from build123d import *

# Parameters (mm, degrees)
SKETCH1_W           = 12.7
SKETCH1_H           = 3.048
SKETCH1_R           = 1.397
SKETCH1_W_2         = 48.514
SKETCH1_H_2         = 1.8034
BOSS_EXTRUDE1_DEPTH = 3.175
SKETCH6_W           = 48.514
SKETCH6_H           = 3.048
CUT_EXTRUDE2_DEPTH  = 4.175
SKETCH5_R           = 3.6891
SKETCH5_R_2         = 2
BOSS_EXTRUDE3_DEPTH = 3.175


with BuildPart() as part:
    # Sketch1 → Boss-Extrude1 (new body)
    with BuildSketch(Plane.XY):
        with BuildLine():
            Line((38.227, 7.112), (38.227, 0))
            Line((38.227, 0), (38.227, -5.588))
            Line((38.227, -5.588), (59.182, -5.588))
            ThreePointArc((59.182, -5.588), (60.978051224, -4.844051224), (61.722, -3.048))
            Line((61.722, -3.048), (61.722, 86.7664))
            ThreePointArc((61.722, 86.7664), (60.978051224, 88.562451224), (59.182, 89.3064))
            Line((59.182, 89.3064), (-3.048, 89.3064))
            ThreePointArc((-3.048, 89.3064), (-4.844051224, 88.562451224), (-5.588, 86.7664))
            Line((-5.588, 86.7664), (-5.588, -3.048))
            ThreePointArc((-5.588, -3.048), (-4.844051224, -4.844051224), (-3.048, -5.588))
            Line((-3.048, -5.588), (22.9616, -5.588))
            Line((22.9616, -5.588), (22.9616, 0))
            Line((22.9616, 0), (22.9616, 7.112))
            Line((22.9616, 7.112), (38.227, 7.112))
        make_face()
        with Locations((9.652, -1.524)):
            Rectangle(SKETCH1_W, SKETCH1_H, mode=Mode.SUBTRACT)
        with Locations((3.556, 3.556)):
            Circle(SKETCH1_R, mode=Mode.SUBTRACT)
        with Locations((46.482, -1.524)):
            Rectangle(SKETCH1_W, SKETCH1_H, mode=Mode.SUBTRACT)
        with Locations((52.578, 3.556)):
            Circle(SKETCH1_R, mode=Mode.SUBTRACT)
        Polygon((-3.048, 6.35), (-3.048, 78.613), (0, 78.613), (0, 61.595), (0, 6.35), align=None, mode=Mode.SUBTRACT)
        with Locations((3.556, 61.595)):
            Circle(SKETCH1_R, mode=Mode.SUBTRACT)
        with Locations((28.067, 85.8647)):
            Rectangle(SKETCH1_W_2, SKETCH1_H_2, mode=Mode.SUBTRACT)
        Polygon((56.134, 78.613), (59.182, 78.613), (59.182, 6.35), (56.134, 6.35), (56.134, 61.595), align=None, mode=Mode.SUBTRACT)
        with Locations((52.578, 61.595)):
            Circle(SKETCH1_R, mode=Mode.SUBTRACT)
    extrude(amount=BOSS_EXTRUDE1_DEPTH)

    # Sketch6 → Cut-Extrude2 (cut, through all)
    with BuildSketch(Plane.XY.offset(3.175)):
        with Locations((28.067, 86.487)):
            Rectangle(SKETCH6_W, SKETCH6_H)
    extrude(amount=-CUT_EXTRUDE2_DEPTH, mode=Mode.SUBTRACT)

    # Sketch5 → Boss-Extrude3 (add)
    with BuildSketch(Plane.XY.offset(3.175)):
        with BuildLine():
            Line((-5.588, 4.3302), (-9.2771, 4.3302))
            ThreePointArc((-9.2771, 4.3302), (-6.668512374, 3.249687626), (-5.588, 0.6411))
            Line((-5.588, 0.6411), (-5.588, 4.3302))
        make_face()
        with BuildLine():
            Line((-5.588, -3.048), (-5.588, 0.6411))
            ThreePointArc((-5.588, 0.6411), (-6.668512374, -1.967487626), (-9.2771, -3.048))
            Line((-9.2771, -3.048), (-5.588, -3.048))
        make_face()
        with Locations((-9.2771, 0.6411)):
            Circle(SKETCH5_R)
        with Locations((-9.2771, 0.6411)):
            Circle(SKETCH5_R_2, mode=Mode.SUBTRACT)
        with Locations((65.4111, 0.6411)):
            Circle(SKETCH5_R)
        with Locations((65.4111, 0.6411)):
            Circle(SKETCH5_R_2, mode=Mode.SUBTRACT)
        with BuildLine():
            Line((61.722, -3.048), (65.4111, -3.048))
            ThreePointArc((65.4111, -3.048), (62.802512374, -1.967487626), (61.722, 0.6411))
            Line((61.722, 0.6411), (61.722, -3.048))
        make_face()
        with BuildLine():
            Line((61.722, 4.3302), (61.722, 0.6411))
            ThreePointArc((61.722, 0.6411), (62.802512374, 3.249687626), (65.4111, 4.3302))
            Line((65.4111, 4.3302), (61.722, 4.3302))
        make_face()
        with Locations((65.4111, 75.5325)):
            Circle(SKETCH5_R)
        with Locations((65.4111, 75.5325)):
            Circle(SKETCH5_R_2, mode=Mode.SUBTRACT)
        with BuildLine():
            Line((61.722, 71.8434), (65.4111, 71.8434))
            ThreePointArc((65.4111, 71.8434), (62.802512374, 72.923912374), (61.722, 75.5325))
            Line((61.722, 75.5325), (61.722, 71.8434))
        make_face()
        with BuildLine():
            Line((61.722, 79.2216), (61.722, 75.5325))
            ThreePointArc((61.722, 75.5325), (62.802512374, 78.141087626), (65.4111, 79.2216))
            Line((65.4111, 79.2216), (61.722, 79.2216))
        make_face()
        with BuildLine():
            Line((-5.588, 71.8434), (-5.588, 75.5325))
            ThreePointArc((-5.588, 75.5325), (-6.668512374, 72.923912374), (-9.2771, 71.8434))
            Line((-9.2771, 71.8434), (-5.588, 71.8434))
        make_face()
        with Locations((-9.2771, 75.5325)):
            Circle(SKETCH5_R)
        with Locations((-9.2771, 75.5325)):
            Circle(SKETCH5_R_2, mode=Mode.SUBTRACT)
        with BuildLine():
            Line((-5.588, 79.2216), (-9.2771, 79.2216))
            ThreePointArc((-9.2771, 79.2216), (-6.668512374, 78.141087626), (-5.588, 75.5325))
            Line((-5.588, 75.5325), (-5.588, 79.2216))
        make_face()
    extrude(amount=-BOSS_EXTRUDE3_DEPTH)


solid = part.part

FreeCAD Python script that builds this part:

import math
import FreeCAD as App
import Part
import Sketcher
from FreeCAD import Vector
Q = App.Units.Quantity


def add_polygon(sketch, points):
    """Adds a closed chain of lines whose ends are joined by coincident constraints."""
    first, n = sketch.GeometryCount, len(points)
    for a, b in zip(points, points[1:] + points[:1]):
        sketch.addGeometry(Part.LineSegment(App.Vector(*a, 0), App.Vector(*b, 0)), False)
    for i in range(n):
        sketch.addConstraint(Sketcher.Constraint("Coincident", first + i, 2, first + (i + 1) % n, 1))

doc = App.newDocument("Part")
body = doc.addObject("PartDesign::Body", "Body")

# Sketch on XY plane
sketch1 = body.newObject("Sketcher::SketchObject", "Sketch")
sketch1.AttachmentSupport = (doc.getObject("XY_Plane"), [""])
sketch1.MapMode = "FlatFace"
sketch1.addGeometry(Part.LineSegment(Vector(38.227, 7.112, 0), Vector(38.227, -5.588, 0)), False)  # 0
sketch1.addGeometry(Part.LineSegment(Vector(38.227, -5.588, 0), Vector(59.182, -5.588, 0)), False)  # 1
sketch1.addGeometry(Part.ArcOfCircle(Part.Circle(Vector(59.182, -3.048, 0), Vector(0, 0, 1), 2.54), math.radians(-90), math.radians(0)), False)  # 2
sketch1.addGeometry(Part.LineSegment(Vector(61.722, -3.048, 0), Vector(61.722, 86.7664, 0)), False)  # 3
sketch1.addGeometry(Part.ArcOfCircle(Part.Circle(Vector(59.182, 86.7664, 0), Vector(0, 0, 1), 2.54), math.radians(0), math.radians(90)), False)  # 4
sketch1.addGeometry(Part.LineSegment(Vector(59.182, 89.3064, 0), Vector(-3.048, 89.3064, 0)), False)  # 5
sketch1.addGeometry(Part.ArcOfCircle(Part.Circle(Vector(-3.048, 86.7664, 0), Vector(0, 0, 1), 2.54), math.radians(90), math.radians(180)), False)  # 6
sketch1.addGeometry(Part.LineSegment(Vector(-5.588, 86.7664, 0), Vector(-5.588, -3.048, 0)), False)  # 7
sketch1.addGeometry(Part.ArcOfCircle(Part.Circle(Vector(-3.048, -3.048, 0), Vector(0, 0, 1), 2.54), math.radians(-180), math.radians(-90)), False)  # 8
sketch1.addGeometry(Part.LineSegment(Vector(-3.048, -5.588, 0), Vector(22.9616, -5.588, 0)), False)  # 9
sketch1.addGeometry(Part.LineSegment(Vector(22.9616, -5.588, 0), Vector(22.9616, 7.112, 0)), False)  # 10
sketch1.addGeometry(Part.LineSegment(Vector(22.9616, 7.112, 0), Vector(38.227, 7.112, 0)), False)  # 11
sketch1.addGeometry(Part.Circle(Vector(3.556, 3.556, 0), Vector(0, 0, 1), 1.397), False)  # 12
add_polygon(sketch1, [(16.002, -3.048), (3.302, -3.048), (3.302, 0), (16.002, 0)])  # lines 13-16
add_polygon(sketch1, [(52.832, -3.048), (40.132, -3.048), (40.132, 0), (52.832, 0)])  # lines 17-20
sketch1.addGeometry(Part.Circle(Vector(52.578, 3.556, 0), Vector(0, 0, 1), 1.397), False)  # 21
add_polygon(sketch1, [(0, 6.35), (-3.048, 6.35), (-3.048, 78.613), (0, 78.613)])  # lines 22-25
sketch1.addGeometry(Part.Circle(Vector(3.556, 61.595, 0), Vector(0, 0, 1), 1.397), False)  # 26
add_polygon(sketch1, [(56.134, 6.35), (56.134, 78.613), (59.182, 78.613), (59.182, 6.35)])  # lines 27-30
sketch1.addGeometry(Part.Circle(Vector(52.578, 61.595, 0), Vector(0, 0, 1), 1.397), False)  # 31
add_polygon(sketch1, [(52.324, 84.963), (3.81, 84.963), (3.81, 86.7664), (52.324, 86.7664)])  # lines 32-35
sketch1.addConstraint([
    Sketcher.Constraint("Coincident", 0, 2, 1, 1),
    Sketcher.Constraint("Tangent", 1, 2, 2, 1),
    Sketcher.Constraint("Tangent", 2, 2, 3, 1),
    Sketcher.Constraint("Tangent", 3, 2, 4, 1),
    Sketcher.Constraint("Tangent", 4, 2, 5, 1),
    Sketcher.Constraint("Tangent", 5, 2, 6, 1),
    Sketcher.Constraint("Tangent", 6, 2, 7, 1),
    Sketcher.Constraint("Tangent", 7, 2, 8, 1),
    Sketcher.Constraint("Tangent", 8, 2, 9, 1),
    Sketcher.Constraint("Coincident", 9, 2, 10, 1),
    Sketcher.Constraint("Coincident", 10, 2, 11, 1),
    Sketcher.Constraint("Coincident", 11, 2, 0, 1),
    Sketcher.Constraint("Vertical", 0),
    Sketcher.Constraint("Horizontal", 1),
    Sketcher.Constraint("Vertical", 3),
    Sketcher.Constraint("Horizontal", 5),
    Sketcher.Constraint("Vertical", 7),
    Sketcher.Constraint("Horizontal", 9),
    Sketcher.Constraint("Vertical", 10),
    Sketcher.Constraint("Horizontal", 11),
    Sketcher.Constraint("Horizontal", 13),
    Sketcher.Constraint("Vertical", 14),
    Sketcher.Constraint("Horizontal", 15),
    Sketcher.Constraint("Vertical", 16),
    Sketcher.Constraint("Horizontal", 17),
    Sketcher.Constraint("Vertical", 18),
    Sketcher.Constraint("Horizontal", 19),
    Sketcher.Constraint("Vertical", 20),
    Sketcher.Constraint("Horizontal", 22),
    Sketcher.Constraint("Vertical", 23),
    Sketcher.Constraint("Horizontal", 24),
    Sketcher.Constraint("Vertical", 25),
    Sketcher.Constraint("Vertical", 27),
    Sketcher.Constraint("Horizontal", 28),
    Sketcher.Constraint("Vertical", 29),
    Sketcher.Constraint("Horizontal", 30),
    Sketcher.Constraint("Horizontal", 32),
    Sketcher.Constraint("Vertical", 33),
    Sketcher.Constraint("Horizontal", 34),
    Sketcher.Constraint("Vertical", 35),
    Sketcher.Constraint("Equal", 2, 4),
    Sketcher.Constraint("Equal", 4, 6),
    Sketcher.Constraint("Equal", 6, 8),
    Sketcher.Constraint("Equal", 12, 21),
    Sketcher.Constraint("Equal", 21, 26),
    Sketcher.Constraint("Equal", 26, 31),
    Sketcher.Constraint("PointOnObject", 14, 2, -1),
    Sketcher.Constraint("PointOnObject", 18, 2, -1),
    Sketcher.Constraint("PointOnObject", 24, 2, -2),
    Sketcher.Constraint("Horizontal", 2, 3, 8, 3),
    Sketcher.Constraint("Horizontal", 12, 3, 21, 3),
    Sketcher.Constraint("Horizontal", 26, 3, 31, 3),
    Sketcher.Constraint("Horizontal", 7, 2, 13, 2),
    Sketcher.Constraint("Horizontal", 16, 2, 17, 2),
    Sketcher.Constraint("Horizontal", 24, 2, 27, 2),
    Sketcher.Constraint("Horizontal", 25, 2, 29, 2),
    Sketcher.Constraint("Horizontal", 6, 2, 33, 2),
    Sketcher.Constraint("Vertical", 12, 3, 26, 3),
    Sketcher.Constraint("Vertical", 21, 3, 31, 3),
    Sketcher.Constraint("Vertical", 8, 2, 22, 2),
    Sketcher.Constraint("Vertical", 4, 2, 28, 2),
    Sketcher.Constraint("Equal", 15, 17),
    Sketcher.Constraint("Equal", 24, 28),
    Sketcher.Constraint("Equal", 19, 0),
    Sketcher.Constraint("Equal", 30, 14),
    Sketcher.Constraint("Radius", 2, Q("0.1 in")),
    Sketcher.Constraint("Diameter", 12, Q("0.11 in")),
    Sketcher.Constraint("DistanceX", 13, 2, 13, 1, Q("0.5 in")),
    Sketcher.Constraint("DistanceX", 5, 2, 5, 1, Q("2.45 in")),
    Sketcher.Constraint("DistanceX", 22, 2, 22, 1, Q("0.12 in")),
    Sketcher.Constraint("DistanceX", 32, 2, 32, 1, Q("1.91 in")),
    Sketcher.Constraint("DistanceX", 1, 1, 1, 2, Q("0.825 in")),
    Sketcher.Constraint("DistanceX", 9, 1, 9, 2, Q("1.024 in")),
    Sketcher.Constraint("DistanceY", 3, 1, 3, 2, Q("3.536 in")),
    Sketcher.Constraint("DistanceY", 23, 1, 23, 2, Q("2.845 in")),
    Sketcher.Constraint("DistanceY", 33, 1, 33, 2, Q("0.071 in")),
    Sketcher.Constraint("DistanceX", -1, 1, 12, 3, Q("0.14 in")),
    Sketcher.Constraint("DistanceY", -1, 1, 12, 3, Q("0.14 in")),
    Sketcher.Constraint("DistanceX", -1, 1, 21, 3, Q("2.07 in")),
    Sketcher.Constraint("DistanceX", -1, 1, 13, 2, Q("0.13 in")),
    Sketcher.Constraint("DistanceX", -1, 1, 17, 2, Q("1.58 in")),
    Sketcher.Constraint("DistanceY", -1, 1, 22, 2, Q("0.25 in")),
    Sketcher.Constraint("DistanceX", -1, 1, 32, 2, Q("0.15 in")),
    Sketcher.Constraint("DistanceY", 26, 3, 23, 2, Q("0.67 in")),
])
pad1 = body.newObject("PartDesign::Pad", "Pad")
pad1.Profile = sketch1
pad1.Length = Q("0.125 in")

# Sketch on XY plane
sketch2 = body.newObject("Sketcher::SketchObject", "Sketch001")
sketch2.AttachmentSupport = (doc.getObject("XY_Plane"), [""])
sketch2.MapMode = "FlatFace"
sketch2.AttachmentOffset = App.Placement(Vector(0, 0, 0.125 * 25.4), App.Rotation())
add_polygon(sketch2, [(3.81, 88.011), (3.81, 84.963), (52.324, 84.963), (52.324, 88.011)])  # lines 0-3
sketch2.addConstraint([
    Sketcher.Constraint("Vertical", 0),
    Sketcher.Constraint("Horizontal", 1),
    Sketcher.Constraint("Vertical", 2),
    Sketcher.Constraint("Horizontal", 3),
    Sketcher.Constraint("DistanceX", 1, 1, 1, 2, Q("1.91 in")),
    Sketcher.Constraint("DistanceY", 0, 2, 0, 1, Q("0.12 in")),
    Sketcher.Constraint("DistanceX", -1, 1, 0, 2, Q("0.15 in")),
    Sketcher.Constraint("DistanceY", -1, 1, 0, 2, Q("3.345 in")),
])
pocket1 = body.newObject("PartDesign::Pocket", "Pocket")
pocket1.Profile = sketch2
pocket1.Type = "ThroughAll"

# Sketch on XY plane
sketch3 = body.newObject("Sketcher::SketchObject", "Sketch002")
sketch3.AttachmentSupport = (doc.getObject("XY_Plane"), [""])
sketch3.MapMode = "FlatFace"
sketch3.AttachmentOffset = App.Placement(Vector(0, 0, 0.125 * 25.4), App.Rotation())
sketch3.addGeometry([
    Part.LineSegment(Vector(-5.588, 4.3302, 0), Vector(-9.2771, 4.3302, 0)),  # 0
    Part.ArcOfCircle(Part.Circle(Vector(-9.2771, 0.6411, 0), Vector(0, 0, 1), 3.6891), math.radians(90), math.radians(270)),  # 1
    Part.LineSegment(Vector(-9.2771, -3.048, 0), Vector(-5.588, -3.048, 0)),  # 2
    Part.LineSegment(Vector(-5.588, -3.048, 0), Vector(-5.588, 4.3302, 0)),  # 3
    Part.Circle(Vector(-9.2771, 0.6411, 0), Vector(0, 0, 1), 2),  # 4
    Part.LineSegment(Vector(61.722, -3.048, 0), Vector(65.4111, -3.048, 0)),  # 5
    Part.ArcOfCircle(Part.Circle(Vector(65.4111, 0.6411, 0), Vector(0, 0, 1), 3.6891), math.radians(-90), math.radians(90)),  # 6
    Part.LineSegment(Vector(65.4111, 4.3302, 0), Vector(61.722, 4.3302, 0)),  # 7
    Part.LineSegment(Vector(61.722, 4.3302, 0), Vector(61.722, -3.048, 0)),  # 8
    Part.Circle(Vector(65.4111, 0.6411, 0), Vector(0, 0, 1), 2),  # 9
    Part.LineSegment(Vector(61.722, 71.8434, 0), Vector(65.4111, 71.8434, 0)),  # 10
    Part.ArcOfCircle(Part.Circle(Vector(65.4111, 75.5325, 0), Vector(0, 0, 1), 3.6891), math.radians(-90), math.radians(90)),  # 11
    Part.LineSegment(Vector(65.4111, 79.2216, 0), Vector(61.722, 79.2216, 0)),  # 12
    Part.LineSegment(Vector(61.722, 79.2216, 0), Vector(61.722, 71.8434, 0)),  # 13
    Part.Circle(Vector(65.4111, 75.5325, 0), Vector(0, 0, 1), 2),  # 14
    Part.LineSegment(Vector(-5.588, 71.8434, 0), Vector(-5.588, 79.2216, 0)),  # 15
    Part.LineSegment(Vector(-5.588, 79.2216, 0), Vector(-9.2771, 79.2216, 0)),  # 16
    Part.ArcOfCircle(Part.Circle(Vector(-9.2771, 75.5325, 0), Vector(0, 0, 1), 3.6891), math.radians(90), math.radians(270)),  # 17
    Part.LineSegment(Vector(-9.2771, 71.8434, 0), Vector(-5.588, 71.8434, 0)),  # 18
    Part.Circle(Vector(-9.2771, 75.5325, 0), Vector(0, 0, 1), 2),  # 19
], False)
sketch3.addConstraint([
    Sketcher.Constraint("Tangent", 0, 2, 1, 1),
    Sketcher.Constraint("Tangent", 1, 2, 2, 1),
    Sketcher.Constraint("Coincident", 2, 2, 3, 1),
    Sketcher.Constraint("Coincident", 3, 2, 0, 1),
    Sketcher.Constraint("Tangent", 5, 2, 6, 1),
    Sketcher.Constraint("Tangent", 6, 2, 7, 1),
    Sketcher.Constraint("Coincident", 7, 2, 8, 1),
    Sketcher.Constraint("Coincident", 8, 2, 5, 1),
    Sketcher.Constraint("Tangent", 10, 2, 11, 1),
    Sketcher.Constraint("Tangent", 11, 2, 12, 1),
    Sketcher.Constraint("Coincident", 12, 2, 13, 1),
    Sketcher.Constraint("Coincident", 13, 2, 10, 1),
    Sketcher.Constraint("Coincident", 15, 2, 16, 1),
    Sketcher.Constraint("Tangent", 16, 2, 17, 1),
    Sketcher.Constraint("Tangent", 17, 2, 18, 1),
    Sketcher.Constraint("Coincident", 18, 2, 15, 1),
    Sketcher.Constraint("Horizontal", 0),
    Sketcher.Constraint("Horizontal", 2),
    Sketcher.Constraint("Vertical", 3),
    Sketcher.Constraint("Horizontal", 5),
    Sketcher.Constraint("Horizontal", 7),
    Sketcher.Constraint("Vertical", 8),
    Sketcher.Constraint("Horizontal", 10),
    Sketcher.Constraint("Horizontal", 12),
    Sketcher.Constraint("Vertical", 13),
    Sketcher.Constraint("Vertical", 15),
    Sketcher.Constraint("Horizontal", 16),
    Sketcher.Constraint("Horizontal", 18),
    Sketcher.Constraint("Coincident", 4, 3, 1, 3),
    Sketcher.Constraint("Coincident", 9, 3, 6, 3),
    Sketcher.Constraint("Coincident", 14, 3, 11, 3),
    Sketcher.Constraint("Coincident", 19, 3, 17, 3),
    Sketcher.Constraint("Equal", 1, 6),
    Sketcher.Constraint("Equal", 4, 9),
    Sketcher.Constraint("Equal", 6, 11),
    Sketcher.Constraint("Equal", 9, 14),
    Sketcher.Constraint("Equal", 11, 17),
    Sketcher.Constraint("Equal", 14, 19),
    Sketcher.Constraint("Horizontal", 4, 3, 6, 3),
    Sketcher.Constraint("Horizontal", 14, 3, 17, 3),
    Sketcher.Constraint("Vertical", 9, 3, 11, 3),
    Sketcher.Constraint("Vertical", 4, 3, 17, 3),
    Sketcher.Constraint("Vertical", 8, 2, 12, 2),
    Sketcher.Constraint("Vertical", 3, 2, 15, 2),
    Sketcher.Constraint("Equal", 2, 5),
    Sketcher.Constraint("Diameter", 4, 4.0),
    Sketcher.Constraint("DistanceY", 1, 2, -1, 1, Q("0.12 in")),
    Sketcher.Constraint("DistanceX", 2, 2, -1, 1, Q("0.22 in")),
    Sketcher.Constraint("DistanceX", -1, 1, 7, 2, Q("2.43 in")),
    Sketcher.Constraint("Radius", 1, 3.6891),
    Sketcher.Constraint("DistanceY", 6, 2, 10, 2, Q("2.658 in")),
    Sketcher.Constraint("DistanceX", 0, 2, 0, 1, 3.6891),
])
pad2 = body.newObject("PartDesign::Pad", "Pad001")
pad2.Profile = sketch3
pad2.Length = Q("0.125 in")
pad2.Reversed = True

doc.recompute()
